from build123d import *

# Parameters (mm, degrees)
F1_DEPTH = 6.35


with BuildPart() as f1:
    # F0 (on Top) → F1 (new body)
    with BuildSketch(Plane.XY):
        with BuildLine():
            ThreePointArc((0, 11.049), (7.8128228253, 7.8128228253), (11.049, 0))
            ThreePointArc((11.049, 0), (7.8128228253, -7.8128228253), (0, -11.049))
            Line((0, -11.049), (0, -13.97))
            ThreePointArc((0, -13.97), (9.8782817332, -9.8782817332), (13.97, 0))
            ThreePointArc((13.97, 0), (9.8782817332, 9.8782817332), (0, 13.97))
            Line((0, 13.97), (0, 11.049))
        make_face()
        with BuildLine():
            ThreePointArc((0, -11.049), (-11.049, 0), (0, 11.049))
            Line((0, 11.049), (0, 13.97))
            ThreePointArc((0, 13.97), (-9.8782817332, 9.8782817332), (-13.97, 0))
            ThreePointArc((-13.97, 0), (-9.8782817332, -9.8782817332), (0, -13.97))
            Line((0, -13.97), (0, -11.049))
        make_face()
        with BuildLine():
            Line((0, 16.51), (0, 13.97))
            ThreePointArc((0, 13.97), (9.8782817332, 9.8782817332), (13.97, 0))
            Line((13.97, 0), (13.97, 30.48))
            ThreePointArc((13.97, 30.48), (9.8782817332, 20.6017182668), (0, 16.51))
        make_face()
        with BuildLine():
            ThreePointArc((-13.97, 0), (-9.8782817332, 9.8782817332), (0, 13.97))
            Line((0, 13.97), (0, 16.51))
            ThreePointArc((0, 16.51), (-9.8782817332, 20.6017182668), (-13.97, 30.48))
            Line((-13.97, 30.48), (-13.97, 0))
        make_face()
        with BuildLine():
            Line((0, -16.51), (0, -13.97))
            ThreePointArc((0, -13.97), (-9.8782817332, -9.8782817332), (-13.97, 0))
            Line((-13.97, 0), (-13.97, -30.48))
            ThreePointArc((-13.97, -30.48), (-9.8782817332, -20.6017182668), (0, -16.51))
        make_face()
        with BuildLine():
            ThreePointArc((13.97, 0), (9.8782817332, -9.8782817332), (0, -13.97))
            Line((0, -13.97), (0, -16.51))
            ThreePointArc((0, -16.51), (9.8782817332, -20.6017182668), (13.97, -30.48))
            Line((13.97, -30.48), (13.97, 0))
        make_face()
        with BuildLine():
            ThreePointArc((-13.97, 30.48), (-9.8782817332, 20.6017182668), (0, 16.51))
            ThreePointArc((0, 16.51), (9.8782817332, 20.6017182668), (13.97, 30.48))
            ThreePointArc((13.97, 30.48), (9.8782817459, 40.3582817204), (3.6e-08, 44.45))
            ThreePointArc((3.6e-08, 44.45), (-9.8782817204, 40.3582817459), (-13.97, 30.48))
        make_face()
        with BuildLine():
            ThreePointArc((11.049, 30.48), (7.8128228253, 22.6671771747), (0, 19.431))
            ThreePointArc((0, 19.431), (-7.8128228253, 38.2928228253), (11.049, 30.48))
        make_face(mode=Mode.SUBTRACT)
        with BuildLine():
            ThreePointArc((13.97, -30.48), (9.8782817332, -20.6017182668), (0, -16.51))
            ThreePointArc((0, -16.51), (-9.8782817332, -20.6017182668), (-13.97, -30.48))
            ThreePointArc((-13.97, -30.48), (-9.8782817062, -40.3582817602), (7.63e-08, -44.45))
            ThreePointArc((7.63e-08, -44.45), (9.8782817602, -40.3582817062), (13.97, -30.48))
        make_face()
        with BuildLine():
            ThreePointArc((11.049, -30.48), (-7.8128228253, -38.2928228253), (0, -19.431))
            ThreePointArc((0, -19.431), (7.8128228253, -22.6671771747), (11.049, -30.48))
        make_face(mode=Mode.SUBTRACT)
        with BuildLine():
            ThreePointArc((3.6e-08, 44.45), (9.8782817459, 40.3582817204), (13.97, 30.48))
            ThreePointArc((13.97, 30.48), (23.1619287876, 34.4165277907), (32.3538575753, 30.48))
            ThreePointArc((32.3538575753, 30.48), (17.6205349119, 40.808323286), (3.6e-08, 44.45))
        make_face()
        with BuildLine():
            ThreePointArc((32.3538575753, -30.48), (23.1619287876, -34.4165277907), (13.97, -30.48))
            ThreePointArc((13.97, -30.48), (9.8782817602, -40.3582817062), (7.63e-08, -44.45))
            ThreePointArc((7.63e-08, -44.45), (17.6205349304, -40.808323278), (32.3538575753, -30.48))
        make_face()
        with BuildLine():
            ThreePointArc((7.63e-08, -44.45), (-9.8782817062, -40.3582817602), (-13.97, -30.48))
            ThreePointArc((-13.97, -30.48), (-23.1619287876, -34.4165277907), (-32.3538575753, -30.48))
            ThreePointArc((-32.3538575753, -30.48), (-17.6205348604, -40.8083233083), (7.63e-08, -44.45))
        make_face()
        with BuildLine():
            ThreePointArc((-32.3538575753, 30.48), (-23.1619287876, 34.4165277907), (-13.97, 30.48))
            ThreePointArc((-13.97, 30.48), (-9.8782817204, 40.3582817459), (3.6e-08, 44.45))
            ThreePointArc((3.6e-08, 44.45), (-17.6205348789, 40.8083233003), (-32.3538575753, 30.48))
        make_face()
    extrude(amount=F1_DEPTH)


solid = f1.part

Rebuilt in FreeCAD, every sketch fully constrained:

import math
import FreeCAD as App
import Part
import Sketcher

V = App.Vector
Q = App.Units.Quantity

doc = App.newDocument("Part")
body = doc.addObject("PartDesign::Body", "Body")

# Sketch on XY plane
sketch1 = doc.addObject("Sketcher::SketchObject", "Sketch")
body.addObject(sketch1)
sketch1.AttachmentSupport = (doc.XY_Plane, [""])
sketch1.MapMode = "FlatFace"
sketch1.addGeometry([
    Part.LineSegment(V(-13.97, 30.48, 0), V(-13.97, -30.48, 0)),  # 0
    Part.ArcOfCircle(Part.Circle(V(-23.161929, -21.716528, 0), V(0, 0, 1), 12.7), math.radians(-136.366948), math.radians(-43.633052)),  # 1
    Part.ArcOfCircle(Part.Circle(V(0, 0, 0), V(0, 0, 1), 44.45), math.radians(-136.708192), math.radians(-90)),  # 2
    Part.ArcOfCircle(Part.Circle(V(0, 0, 0), V(0, 0, 1), 44.45), math.radians(-90), math.radians(-43.291808)),  # 3
    Part.ArcOfCircle(Part.Circle(V(23.161929, -21.716528, 0), V(0, 0, 1), 12.7), math.radians(-136.366948), math.radians(-43.633052)),  # 4
    Part.LineSegment(V(13.97, -30.48, 0), V(13.97, 30.48, 0)),  # 5
    Part.ArcOfCircle(Part.Circle(V(23.161929, 21.716528, 0), V(0, 0, 1), 12.7), math.radians(43.633052), math.radians(136.366948)),  # 6
    Part.ArcOfCircle(Part.Circle(V(0, 0, 0), V(0, 0, 1), 44.45), math.radians(43.291808), math.radians(90)),  # 7
    Part.ArcOfCircle(Part.Circle(V(0, 0, 0), V(0, 0, 1), 44.45), math.radians(90), math.radians(136.708192)),  # 8
    Part.ArcOfCircle(Part.Circle(V(-23.161929, 21.716528, 0), V(0, 0, 1), 12.7), math.radians(43.633052), math.radians(136.366948)),  # 9
    Part.ArcOfCircle(Part.Circle(V(0, -30.48, 0), V(0, 0, 1), 11.049), math.radians(0), math.radians(90)),  # 10
    Part.ArcOfCircle(Part.Circle(V(0, -30.48, 0), V(0, 0, 1), 11.049), math.radians(90), math.radians(360)),  # 11
    Part.ArcOfCircle(Part.Circle(V(0, 0, 0), V(0, 0, 1), 11.049), math.radians(0), math.radians(90)),  # 12
    Part.ArcOfCircle(Part.Circle(V(0, 0, 0), V(0, 0, 1), 11.049), math.radians(-90), math.radians(0)),  # 13
    Part.ArcOfCircle(Part.Circle(V(0, 0, 0), V(0, 0, 1), 11.049), math.radians(90), math.radians(270)),  # 14
    Part.ArcOfCircle(Part.Circle(V(0, 30.48, 0), V(0, 0, 1), 11.049), math.radians(0), math.radians(270)),  # 15
    Part.ArcOfCircle(Part.Circle(V(0, 30.48, 0), V(0, 0, 1), 11.049), math.radians(-90), math.radians(0)),  # 16
], False)
sketch1.addConstraint([
    Sketcher.Constraint("Coincident", 0, 2, 1, 2),
    Sketcher.Constraint("Coincident", 1, 1, 2, 1),
    Sketcher.Constraint("Tangent", 2, 2, 3, 1),
    Sketcher.Constraint("Coincident", 3, 2, 4, 2),
    Sketcher.Constraint("Coincident", 4, 1, 5, 1),
    Sketcher.Constraint("Coincident", 5, 2, 6, 2),
    Sketcher.Constraint("Coincident", 6, 1, 7, 1),
    Sketcher.Constraint("Tangent", 7, 2, 8, 1),
    Sketcher.Constraint("Coincident", 8, 2, 9, 2),
    Sketcher.Constraint("Coincident", 9, 1, 0, 1),
    Sketcher.Constraint("Tangent", 10, 1, 11, 2),
    Sketcher.Constraint("Coincident", 11, 1, 10, 2),
    Sketcher.Constraint("Tangent", 12, 1, 13, 2),
    Sketcher.Constraint("Tangent", 13, 1, 14, 2),
    Sketcher.Constraint("Tangent", 14, 1, 12, 2),
    Sketcher.Constraint("Tangent", 15, 1, 16, 2),
    Sketcher.Constraint("Coincident", 16, 1, 15, 2),
    Sketcher.Constraint("Vertical", 0),
    Sketcher.Constraint("Vertical", 5),
    Sketcher.Constraint("Coincident", 2, 3, -1, 1),
    Sketcher.Constraint("Coincident", 7, 3, -1, 1),
    Sketcher.Constraint("Coincident", 12, 3, -1, 1),
    Sketcher.Constraint("Equal", 2, 3),
    Sketcher.Constraint("Equal", 1, 4),
    Sketcher.Constraint("Equal", 4, 6),
    Sketcher.Constraint("Equal", 3, 7),
    Sketcher.Constraint("Equal", 7, 8),
    Sketcher.Constraint("Equal", 6, 9),
    Sketcher.Constraint("Equal", 11, 12),
    Sketcher.Constraint("Equal", 14, 15),
    Sketcher.Constraint("Symmetric", 1, 3, 6, 3, -1, 1),
    Sketcher.Constraint("Symmetric", 4, 3, 9, 3, -1, 1),
    Sketcher.Constraint("Symmetric", 10, 3, 15, 3, -1, 1),
    Sketcher.Constraint("Symmetric", 1, 3, 4, 3, -2),
    Sketcher.Constraint("Symmetric", 10, 1, 15, 1, -1),
    Sketcher.Constraint("PointOnObject", 2, 2, -2),
    Sketcher.Constraint("PointOnObject", 7, 2, -2),
    Sketcher.Constraint("PointOnObject", 11, 1, -2),
    Sketcher.Constraint("PointOnObject", 12, 1, -1),
    Sketcher.Constraint("PointOnObject", 13, 1, -2),
    Sketcher.Constraint("PointOnObject", 14, 1, -2),
    Sketcher.Constraint("PointOnObject", 16, 1, -2),
    Sketcher.Constraint("Horizontal", 11, 3, 0, 2),
    Sketcher.Constraint("Horizontal", 0, 2, 1, 1),
    Sketcher.Constraint("Horizontal", 3, 2, 4, 1),
    Sketcher.Constraint("Horizontal", 4, 1, 10, 1),
    Sketcher.Constraint("Radius", 1, Q("0.5 in")),
    Sketcher.Constraint("Radius", 2, Q("1.75 in")),
    Sketcher.Constraint("DistanceY", 0, 2, 0, 1, Q("2.4 in")),
    Sketcher.Constraint("Radius", 10, Q("0.435 in")),
    Sketcher.Constraint("DistanceX", 0, 2, -1, 1, Q("0.55 in")),
])
pad1 = doc.addObject("PartDesign::Pad", "Pad")
body.addObject(pad1)
pad1.Profile = sketch1
pad1.Length = Q("0.25 in")

doc.recompute()
